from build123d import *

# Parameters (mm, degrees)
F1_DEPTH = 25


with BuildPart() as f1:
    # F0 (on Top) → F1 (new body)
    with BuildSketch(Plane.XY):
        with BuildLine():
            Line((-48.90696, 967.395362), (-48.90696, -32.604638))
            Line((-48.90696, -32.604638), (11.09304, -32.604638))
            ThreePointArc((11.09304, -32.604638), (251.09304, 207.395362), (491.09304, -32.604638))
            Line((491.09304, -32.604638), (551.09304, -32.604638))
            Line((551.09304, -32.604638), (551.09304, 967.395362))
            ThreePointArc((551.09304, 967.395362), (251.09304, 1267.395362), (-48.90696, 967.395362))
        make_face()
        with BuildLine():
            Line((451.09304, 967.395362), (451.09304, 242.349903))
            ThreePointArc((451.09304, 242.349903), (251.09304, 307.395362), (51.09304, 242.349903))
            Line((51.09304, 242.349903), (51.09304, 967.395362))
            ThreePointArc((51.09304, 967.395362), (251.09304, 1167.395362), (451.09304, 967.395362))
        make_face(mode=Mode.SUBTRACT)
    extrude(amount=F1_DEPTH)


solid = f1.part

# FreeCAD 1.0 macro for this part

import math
import FreeCAD as App
import Part
import Sketcher

V = App.Vector

doc = App.newDocument("Part")
params = doc.addObject("Spreadsheet::Sheet", "Params")
for row, (alias, value) in enumerate([
    ("sketch1_radius", "240 mm"),
    ("sketch1_radius2", "300 mm"),
    ("sketch1_radius3", "200 mm"),
    ("sketch1_height", "1000 mm"),
    ("pad1_length", "25 mm"),
], start=1):
    params.set(f"A{row}", alias)
    params.set(f"B{row}", "=" + value)
    params.setAlias(f"B{row}", alias)

body = doc.addObject("PartDesign::Body", "Body")

# Sketch on XY plane
sketch1 = body.newObject("Sketcher::SketchObject", "Sketch")
sketch1.AttachmentSupport = (doc.getObject("XY_Plane"), [""])
sketch1.MapMode = "FlatFace"
sketch1.addGeometry([
    Part.LineSegment(V(-49, 967, 0), V(-49, -33, 0)),  # 0
    Part.LineSegment(V(-49, -33, 0), V(11, -33, 0)),  # 1
    Part.ArcOfCircle(Part.Circle(V(251, -33, 0), V(0, 0, 1), 240), math.radians(0), math.radians(180)),  # 2
    Part.LineSegment(V(491, -33, 0), V(551, -33, 0)),  # 3
    Part.LineSegment(V(551, -33, 0), V(551, 967, 0)),  # 4
    Part.ArcOfCircle(Part.Circle(V(251, 967, 0), V(0, 0, 1), 300), math.radians(0), math.radians(180)),  # 5
    Part.ArcOfCircle(Part.Circle(V(251, 967, 0), V(0, 0, 1), 200), math.radians(0), math.radians(180)),  # 6
    Part.LineSegment(V(451, 967, 0), V(451, 242, 0)),  # 7
    Part.ArcOfCircle(Part.Circle(V(251, -33, 0), V(0, 0, 1), 340), math.radians(54), math.radians(126)),  # 8
    Part.LineSegment(V(51, 242, 0), V(51, 967, 0)),  # 9
], False)
sketch1.addConstraint([
    Sketcher.Constraint("Coincident", 0, 2, 1, 1),
    Sketcher.Constraint("Coincident", 1, 2, 2, 2),
    Sketcher.Constraint("Coincident", 2, 1, 3, 1),
    Sketcher.Constraint("Coincident", 3, 2, 4, 1),
    Sketcher.Constraint("Tangent", 4, 2, 5, 1),
    Sketcher.Constraint("Tangent", 5, 2, 0, 1),
    Sketcher.Constraint("Tangent", 6, 1, 7, 1),
    Sketcher.Constraint("Coincident", 7, 2, 8, 1),
    Sketcher.Constraint("Coincident", 8, 2, 9, 1),
    Sketcher.Constraint("Tangent", 9, 2, 6, 2),
    Sketcher.Constraint("Vertical", 0),
    Sketcher.Constraint("Horizontal", 1),
    Sketcher.Constraint("Horizontal", 3),
    Sketcher.Constraint("Vertical", 4),
    Sketcher.Constraint("Vertical", 7),
    Sketcher.Constraint("Vertical", 9),
    Sketcher.Constraint("Coincident", 6, 3, 5, 3),
    Sketcher.Constraint("Coincident", 8, 3, 2, 3),
    Sketcher.Constraint("Horizontal", 2, 3, 0, 2),
    Sketcher.Constraint("Horizontal", 1, 2, 2, 1),
    Sketcher.Constraint("Horizontal", 7, 2, 8, 2),
    Sketcher.Constraint("Radius", 2, 240.0),
    Sketcher.Constraint("Radius", 5, 300.0),
    Sketcher.Constraint("Radius", 6, 200.0),
    Sketcher.Constraint("DistanceY", 0, 2, 0, 1, 1000.0),
    Sketcher.Constraint("Radius", 8, 339.999997),
    Sketcher.Constraint("DistanceX", -1, 1, 2, 3, 251.09304),
    Sketcher.Constraint("DistanceY", -1, 1, 5, 3, 967.395362),
])
sketch1.setExpression("Constraints[21]", "Params.sketch1_radius")
sketch1.setExpression("Constraints[22]", "Params.sketch1_radius2")
sketch1.setExpression("Constraints[23]", "Params.sketch1_radius3")
sketch1.setExpression("Constraints[24]", "Params.sketch1_height")
pad1 = body.newObject("PartDesign::Pad", "Pad")
pad1.Profile = sketch1
pad1.setExpression("Length", "Params.pad1_length")

doc.recompute()
